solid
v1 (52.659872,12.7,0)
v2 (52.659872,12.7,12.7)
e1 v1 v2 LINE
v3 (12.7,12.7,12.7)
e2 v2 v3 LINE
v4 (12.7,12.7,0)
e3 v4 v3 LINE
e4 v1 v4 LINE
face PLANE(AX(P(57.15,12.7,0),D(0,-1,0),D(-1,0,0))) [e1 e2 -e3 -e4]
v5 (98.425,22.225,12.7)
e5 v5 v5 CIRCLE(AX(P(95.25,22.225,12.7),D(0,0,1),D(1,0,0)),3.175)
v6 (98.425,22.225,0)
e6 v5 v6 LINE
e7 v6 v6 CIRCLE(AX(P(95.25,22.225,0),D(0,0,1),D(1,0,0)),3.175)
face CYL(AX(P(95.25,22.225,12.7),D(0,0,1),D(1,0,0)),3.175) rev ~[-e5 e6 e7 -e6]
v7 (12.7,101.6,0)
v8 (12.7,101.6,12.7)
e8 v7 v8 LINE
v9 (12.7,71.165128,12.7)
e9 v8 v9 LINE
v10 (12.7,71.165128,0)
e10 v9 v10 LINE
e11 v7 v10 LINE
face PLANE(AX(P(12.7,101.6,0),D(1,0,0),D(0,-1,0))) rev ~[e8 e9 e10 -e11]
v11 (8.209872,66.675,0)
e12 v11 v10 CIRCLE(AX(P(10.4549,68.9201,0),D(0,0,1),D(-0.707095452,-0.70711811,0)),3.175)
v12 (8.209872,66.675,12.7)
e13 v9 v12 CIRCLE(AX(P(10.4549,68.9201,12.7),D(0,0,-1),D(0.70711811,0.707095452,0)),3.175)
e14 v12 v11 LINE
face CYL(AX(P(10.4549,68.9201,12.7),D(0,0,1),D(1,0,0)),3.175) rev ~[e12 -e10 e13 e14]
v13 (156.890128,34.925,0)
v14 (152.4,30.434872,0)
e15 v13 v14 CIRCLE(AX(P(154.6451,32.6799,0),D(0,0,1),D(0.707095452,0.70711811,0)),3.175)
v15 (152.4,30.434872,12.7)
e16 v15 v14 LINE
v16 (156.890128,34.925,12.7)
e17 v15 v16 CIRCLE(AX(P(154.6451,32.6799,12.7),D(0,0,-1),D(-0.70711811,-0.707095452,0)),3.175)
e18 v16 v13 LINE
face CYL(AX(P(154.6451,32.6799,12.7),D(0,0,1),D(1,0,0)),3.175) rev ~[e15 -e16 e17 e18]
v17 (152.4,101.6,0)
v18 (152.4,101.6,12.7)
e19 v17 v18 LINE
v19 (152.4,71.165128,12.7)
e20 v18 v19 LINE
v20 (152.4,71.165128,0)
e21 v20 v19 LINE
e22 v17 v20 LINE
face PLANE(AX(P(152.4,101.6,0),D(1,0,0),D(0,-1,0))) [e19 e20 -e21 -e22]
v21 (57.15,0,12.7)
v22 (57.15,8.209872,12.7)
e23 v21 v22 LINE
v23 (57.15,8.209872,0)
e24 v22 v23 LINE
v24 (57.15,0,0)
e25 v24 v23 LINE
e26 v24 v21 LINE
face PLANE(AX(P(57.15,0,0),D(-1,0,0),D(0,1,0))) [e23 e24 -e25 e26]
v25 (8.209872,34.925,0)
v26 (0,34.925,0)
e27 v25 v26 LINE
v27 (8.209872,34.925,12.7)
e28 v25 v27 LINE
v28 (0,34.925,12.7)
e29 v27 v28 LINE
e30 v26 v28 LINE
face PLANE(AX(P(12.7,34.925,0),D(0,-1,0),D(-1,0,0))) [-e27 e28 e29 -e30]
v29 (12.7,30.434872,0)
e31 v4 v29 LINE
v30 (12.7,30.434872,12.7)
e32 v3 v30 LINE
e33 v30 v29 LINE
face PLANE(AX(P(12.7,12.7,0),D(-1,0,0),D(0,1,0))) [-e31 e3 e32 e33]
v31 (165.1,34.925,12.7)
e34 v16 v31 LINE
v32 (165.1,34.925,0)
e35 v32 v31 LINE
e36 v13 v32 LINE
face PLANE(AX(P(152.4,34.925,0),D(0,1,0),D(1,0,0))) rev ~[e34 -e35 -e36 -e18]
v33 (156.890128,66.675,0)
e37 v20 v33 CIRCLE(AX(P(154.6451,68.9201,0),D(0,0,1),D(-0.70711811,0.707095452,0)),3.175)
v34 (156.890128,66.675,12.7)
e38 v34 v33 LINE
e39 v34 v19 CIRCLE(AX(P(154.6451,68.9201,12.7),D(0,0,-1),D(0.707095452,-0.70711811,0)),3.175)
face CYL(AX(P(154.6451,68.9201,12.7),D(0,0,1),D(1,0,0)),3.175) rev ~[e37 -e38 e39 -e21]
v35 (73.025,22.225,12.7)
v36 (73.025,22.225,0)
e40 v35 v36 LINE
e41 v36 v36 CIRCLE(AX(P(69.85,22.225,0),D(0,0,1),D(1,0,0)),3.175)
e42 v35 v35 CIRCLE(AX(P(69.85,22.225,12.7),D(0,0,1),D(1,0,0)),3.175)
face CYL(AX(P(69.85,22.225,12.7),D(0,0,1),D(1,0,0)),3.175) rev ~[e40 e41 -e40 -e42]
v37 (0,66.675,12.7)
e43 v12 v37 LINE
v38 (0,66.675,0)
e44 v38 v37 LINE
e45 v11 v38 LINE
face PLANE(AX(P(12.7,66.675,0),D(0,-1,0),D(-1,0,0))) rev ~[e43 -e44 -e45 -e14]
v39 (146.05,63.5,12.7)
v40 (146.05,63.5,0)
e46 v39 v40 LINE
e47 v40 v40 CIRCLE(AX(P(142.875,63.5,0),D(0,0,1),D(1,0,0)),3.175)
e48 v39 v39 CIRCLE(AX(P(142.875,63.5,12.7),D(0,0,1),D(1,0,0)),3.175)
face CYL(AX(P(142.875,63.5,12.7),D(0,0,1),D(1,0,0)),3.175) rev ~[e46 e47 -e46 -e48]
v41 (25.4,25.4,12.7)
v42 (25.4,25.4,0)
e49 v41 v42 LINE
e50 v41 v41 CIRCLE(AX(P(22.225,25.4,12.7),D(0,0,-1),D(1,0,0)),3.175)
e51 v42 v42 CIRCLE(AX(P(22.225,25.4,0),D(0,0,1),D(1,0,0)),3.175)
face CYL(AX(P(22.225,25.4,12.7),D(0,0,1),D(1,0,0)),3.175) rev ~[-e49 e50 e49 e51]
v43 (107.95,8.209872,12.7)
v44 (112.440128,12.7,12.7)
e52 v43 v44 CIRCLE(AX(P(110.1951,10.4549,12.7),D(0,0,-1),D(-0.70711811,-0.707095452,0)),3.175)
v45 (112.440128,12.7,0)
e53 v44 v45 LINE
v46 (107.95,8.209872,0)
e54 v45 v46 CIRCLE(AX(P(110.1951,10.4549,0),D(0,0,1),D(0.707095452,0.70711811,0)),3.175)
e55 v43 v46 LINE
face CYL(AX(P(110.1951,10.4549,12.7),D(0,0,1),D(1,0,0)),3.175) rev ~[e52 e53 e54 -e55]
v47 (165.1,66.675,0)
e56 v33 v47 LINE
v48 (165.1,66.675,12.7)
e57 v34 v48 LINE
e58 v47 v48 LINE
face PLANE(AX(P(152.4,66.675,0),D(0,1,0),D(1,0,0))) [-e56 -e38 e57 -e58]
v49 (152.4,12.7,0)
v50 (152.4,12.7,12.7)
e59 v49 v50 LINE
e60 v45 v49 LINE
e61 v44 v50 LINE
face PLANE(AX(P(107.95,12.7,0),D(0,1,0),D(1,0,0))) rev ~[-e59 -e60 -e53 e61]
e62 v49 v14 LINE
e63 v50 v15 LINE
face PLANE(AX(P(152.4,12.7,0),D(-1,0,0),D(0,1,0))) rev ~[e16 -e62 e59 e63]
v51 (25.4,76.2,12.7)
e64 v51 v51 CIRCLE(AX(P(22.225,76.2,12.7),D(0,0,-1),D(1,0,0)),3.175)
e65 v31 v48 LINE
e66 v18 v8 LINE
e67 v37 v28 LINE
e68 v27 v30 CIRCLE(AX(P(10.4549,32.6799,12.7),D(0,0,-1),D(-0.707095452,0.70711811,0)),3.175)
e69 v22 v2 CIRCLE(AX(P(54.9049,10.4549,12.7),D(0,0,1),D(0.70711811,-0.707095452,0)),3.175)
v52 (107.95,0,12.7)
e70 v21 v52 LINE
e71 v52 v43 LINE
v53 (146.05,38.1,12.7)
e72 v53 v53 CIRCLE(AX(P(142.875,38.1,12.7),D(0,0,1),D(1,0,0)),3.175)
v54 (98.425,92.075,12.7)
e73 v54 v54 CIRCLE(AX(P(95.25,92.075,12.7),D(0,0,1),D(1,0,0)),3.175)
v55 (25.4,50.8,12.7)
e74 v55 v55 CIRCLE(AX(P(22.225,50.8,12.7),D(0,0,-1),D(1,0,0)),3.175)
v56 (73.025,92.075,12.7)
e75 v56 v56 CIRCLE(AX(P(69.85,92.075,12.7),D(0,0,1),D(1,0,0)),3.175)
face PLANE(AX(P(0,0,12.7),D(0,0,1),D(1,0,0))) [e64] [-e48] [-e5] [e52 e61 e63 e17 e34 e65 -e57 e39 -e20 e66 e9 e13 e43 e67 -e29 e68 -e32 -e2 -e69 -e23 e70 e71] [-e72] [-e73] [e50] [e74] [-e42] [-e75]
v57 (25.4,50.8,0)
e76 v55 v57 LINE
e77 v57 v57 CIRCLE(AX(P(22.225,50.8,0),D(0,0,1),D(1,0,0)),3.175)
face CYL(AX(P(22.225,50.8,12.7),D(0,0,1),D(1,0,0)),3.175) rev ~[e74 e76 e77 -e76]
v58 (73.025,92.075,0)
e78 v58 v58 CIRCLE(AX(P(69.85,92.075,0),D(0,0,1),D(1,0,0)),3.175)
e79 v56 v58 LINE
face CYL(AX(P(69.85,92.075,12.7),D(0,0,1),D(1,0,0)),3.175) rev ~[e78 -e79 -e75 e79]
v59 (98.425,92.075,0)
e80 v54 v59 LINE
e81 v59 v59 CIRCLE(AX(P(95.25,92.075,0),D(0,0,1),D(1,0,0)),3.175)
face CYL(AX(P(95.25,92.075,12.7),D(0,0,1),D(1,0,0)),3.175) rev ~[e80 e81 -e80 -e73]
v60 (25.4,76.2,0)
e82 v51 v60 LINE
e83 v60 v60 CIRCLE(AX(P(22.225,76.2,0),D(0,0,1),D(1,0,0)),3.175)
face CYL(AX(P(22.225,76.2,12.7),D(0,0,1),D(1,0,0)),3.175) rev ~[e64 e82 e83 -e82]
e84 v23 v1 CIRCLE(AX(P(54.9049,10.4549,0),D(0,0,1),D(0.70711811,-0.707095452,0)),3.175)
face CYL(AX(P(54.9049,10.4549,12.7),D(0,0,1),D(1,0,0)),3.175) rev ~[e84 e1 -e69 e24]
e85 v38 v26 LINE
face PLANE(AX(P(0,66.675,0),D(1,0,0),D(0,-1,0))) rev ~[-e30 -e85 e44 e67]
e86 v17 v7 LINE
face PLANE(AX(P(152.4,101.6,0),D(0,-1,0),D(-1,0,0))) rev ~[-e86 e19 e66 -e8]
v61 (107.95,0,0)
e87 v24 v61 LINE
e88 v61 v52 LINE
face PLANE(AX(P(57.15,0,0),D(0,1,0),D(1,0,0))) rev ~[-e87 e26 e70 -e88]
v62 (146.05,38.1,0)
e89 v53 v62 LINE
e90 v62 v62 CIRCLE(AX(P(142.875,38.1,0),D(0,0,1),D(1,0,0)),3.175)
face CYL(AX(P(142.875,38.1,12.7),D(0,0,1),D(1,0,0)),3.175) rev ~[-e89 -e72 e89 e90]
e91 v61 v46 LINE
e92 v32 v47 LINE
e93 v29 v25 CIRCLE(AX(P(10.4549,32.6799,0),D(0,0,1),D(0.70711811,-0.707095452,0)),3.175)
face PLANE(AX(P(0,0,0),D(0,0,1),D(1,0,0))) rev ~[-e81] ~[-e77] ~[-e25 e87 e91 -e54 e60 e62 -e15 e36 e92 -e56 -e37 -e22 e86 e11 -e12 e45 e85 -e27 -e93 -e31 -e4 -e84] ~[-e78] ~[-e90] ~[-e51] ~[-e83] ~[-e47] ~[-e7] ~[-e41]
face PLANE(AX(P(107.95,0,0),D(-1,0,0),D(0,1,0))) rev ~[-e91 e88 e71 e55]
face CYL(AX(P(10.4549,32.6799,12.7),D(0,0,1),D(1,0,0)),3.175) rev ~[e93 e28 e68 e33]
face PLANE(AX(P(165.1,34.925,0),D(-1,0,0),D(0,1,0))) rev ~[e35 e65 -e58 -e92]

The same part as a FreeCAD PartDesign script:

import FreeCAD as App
import Part
import Sketcher

V = App.Vector
Q = App.Units.Quantity


def add_polygon(sketch, points):
    """Adds a closed chain of lines whose ends are joined by coincident constraints."""
    first, n = sketch.GeometryCount, len(points)
    for a, b in zip(points, points[1:] + points[:1]):
        sketch.addGeometry(Part.LineSegment(App.Vector(*a, 0), App.Vector(*b, 0)), False)
    for i in range(n):
        sketch.addConstraint(Sketcher.Constraint("Coincident", first + i, 2, first + (i + 1) % n, 1))

doc = App.newDocument("Part")
params = doc.addObject("Spreadsheet::Sheet", "Params")
for row, (alias, value) in enumerate([
    ("sketch1_width", "0.5 in"),
    ("sketch1_width2", "2 in"),
    ("sketch1_height", "0.875 in"),
    ("sketch1_height2", "1.375 in"),
    ("pad1_length", "0.5 in"),
    ("sketch2_diameter", "0.25 in"),
    ("pocket1_length", "0.5 in"),
    ("sketch3_diameter", "0.25 in"),
    ("pocket2_length", "0.5 in"),
    ("sketch4_diameter", "0.25 in"),
    ("pocket3_length", "0.5 in"),
    ("sketch5_diameter", "0.25 in"),
    ("pad2_length", "0.5 in"),
    ("sketch6_diameter", "0.25 in"),
    ("pad3_length", "0.5 in"),
    ("sketch7_diameter", "0.25 in"),
    ("pocket4_length", "0.5 in"),
    ("sketch8_diameter", "0.25 in"),
    ("pad4_length", "0.5 in"),
    ("sketch9_diameter", "0.25 in"),
    ("pocket5_length", "0.5 in"),
    ("sketch10_diameter", "0.25 in"),
    ("pocket6_length", "0.5 in"),
], start=1):
    params.set(f"A{row}", alias)
    params.set(f"B{row}", "=" + value)
    params.setAlias(f"B{row}", alias)

body = doc.addObject("PartDesign::Body", "Body")

sketch1 = body.newObject("Sketcher::SketchObject", "Sketch")
sketch1.AttachmentSupport = (doc.getObject("XY_Plane"), [""])
sketch1.MapMode = "FlatFace"
add_polygon(sketch1, [(57.15, 12.7), (57.15, 0), (107.95, 0), (107.95, 12.7), (152.4, 12.7), (152.4, 34.925), (165.1, 34.925), (165.1, 66.675), (152.4, 66.675), (152.4, 101.6), (12.7, 101.6), (12.7, 66.675), (0, 66.675), (0, 34.925), (12.7, 34.925), (12.7, 12.7)])
sketch1.addConstraint([
    Sketcher.Constraint("Vertical", 0),
    Sketcher.Constraint("Horizontal", 1),
    Sketcher.Constraint("Vertical", 2),
    Sketcher.Constraint("Horizontal", 3),
    Sketcher.Constraint("Vertical", 4),
    Sketcher.Constraint("Horizontal", 5),
    Sketcher.Constraint("Vertical", 6),
    Sketcher.Constraint("Horizontal", 7),
    Sketcher.Constraint("Vertical", 8),
    Sketcher.Constraint("Horizontal", 9),
    Sketcher.Constraint("Vertical", 10),
    Sketcher.Constraint("Horizontal", 11),
    Sketcher.Constraint("Vertical", 12),
    Sketcher.Constraint("Horizontal", 13),
    Sketcher.Constraint("Vertical", 14),
    Sketcher.Constraint("Horizontal", 15),
    Sketcher.Constraint("PointOnObject", 0, 2, -1),
    Sketcher.Constraint("PointOnObject", 11, 2, -2),
    Sketcher.Constraint("Horizontal", 7, 2, 10, 2),
    Sketcher.Constraint("Horizontal", 5, 2, 12, 2),
    Sketcher.Constraint("Horizontal", 3, 2, 14, 2),
    Sketcher.Constraint("Vertical", 4, 2, 7, 2),
    Sketcher.Constraint("Vertical", 10, 2, 13, 2),
    Sketcher.Constraint("Equal", 7, 11),
    Sketcher.Constraint("Equal", 3, 15),
    Sketcher.Constraint("Equal", 13, 0),
    Sketcher.Constraint("DistanceX", 5, 1, 5, 2, Q("0.5 in")),
    Sketcher.Constraint("DistanceY", -1, 1, 8, 2, Q("4 in")),
    Sketcher.Constraint("DistanceX", -1, 1, 5, 2, Q("6.5 in")),
    Sketcher.Constraint("DistanceX", 1, 1, 1, 2, Q("2 in")),
    Sketcher.Constraint("DistanceY", 4, 1, 4, 2, Q("0.875 in")),
    Sketcher.Constraint("DistanceY", 8, 1, 8, 2, Q("1.375 in")),
])
sketch1.setExpression("Constraints[42]", "Params.sketch1_width")
sketch1.setExpression("Constraints[45]", "Params.sketch1_width2")
sketch1.setExpression("Constraints[46]", "Params.sketch1_height")
sketch1.setExpression("Constraints[47]", "Params.sketch1_height2")
pad1 = body.newObject("PartDesign::Pad", "Pad")
pad1.Profile = sketch1
pad1.setExpression("Length", "Params.pad1_length")

sketch2 = body.newObject("Sketcher::SketchObject", "Sketch001")
sketch2.AttachmentSupport = (doc.getObject("XY_Plane"), [""])
sketch2.MapMode = "FlatFace"
sketch2.AttachmentOffset = App.Placement(V(0, 0, 0.5 * 25.4), App.Rotation())
sketch2.addGeometry([
    Part.Circle(V(10.4549, 68.9201, 0), V(0, 0, 1), 3.175),
    Part.Circle(V(10.4549, 32.6799, 0), V(0, 0, 1), 3.175),
    Part.Circle(V(54.9049, 10.4549, 0), V(0, 0, 1), 3.175),
    Part.Circle(V(110.1951, 10.4549, 0), V(0, 0, 1), 3.175),
    Part.Circle(V(154.6451, 32.6799, 0), V(0, 0, 1), 3.175),
    Part.Circle(V(154.6451, 68.9201, 0), V(0, 0, 1), 3.175),
], False)
sketch2.addConstraint([
    Sketcher.Constraint("Equal", 0, 1),
    Sketcher.Constraint("Equal", 1, 2),
    Sketcher.Constraint("Equal", 2, 3),
    Sketcher.Constraint("Equal", 3, 4),
    Sketcher.Constraint("Equal", 4, 5),
    Sketcher.Constraint("Horizontal", 2, 3, 3, 3),
    Sketcher.Constraint("Horizontal", 1, 3, 4, 3),
    Sketcher.Constraint("Horizontal", 0, 3, 5, 3),
    Sketcher.Constraint("Vertical", 0, 3, 1, 3),
    Sketcher.Constraint("Vertical", 4, 3, 5, 3),
    Sketcher.Constraint("Diameter", 0, Q("0.25 in")),
    Sketcher.Constraint("DistanceX", 1, 3, 2, 3, Q("1.75 in")),
    Sketcher.Constraint("DistanceX", 3, 3, 4, 3, Q("1.75 in")),
    Sketcher.Constraint("DistanceY", 2, 3, 1, 3, Q("0.875 in")),
    Sketcher.Constraint("DistanceX", -1, 1, 0, 3, Q("0.4116 in")),
    Sketcher.Constraint("DistanceY", -1, 1, 0, 3, Q("2.7134 in")),
    Sketcher.Constraint("DistanceY", -1, 1, 1, 3, Q("1.2866 in")),
    Sketcher.Constraint("DistanceX", -1, 1, 3, 3, Q("4.3384 in")),
])
sketch2.setExpression("Constraints[10]", "Params.sketch2_diameter")
pocket1 = body.newObject("PartDesign::Pocket", "Pocket")
pocket1.Profile = sketch2
pocket1.setExpression("Length", "Params.pocket1_length")

sketch3 = body.newObject("Sketcher::SketchObject", "Sketch002")
sketch3.AttachmentSupport = (doc.getObject("XY_Plane"), [""])
sketch3.MapMode = "FlatFace"
sketch3.AttachmentOffset = App.Placement(V(0, 0, 0.5 * 25.4), App.Rotation())
sketch3.addGeometry([
    Part.Circle(V(22.225, 82.55, 0), V(0, 0, 1), 3.175),
    Part.Circle(V(22.225, 57.15, 0), V(0, 0, 1), 3.175),
    Part.Circle(V(22.225, 31.75, 0), V(0, 0, 1), 3.175),
    Part.Circle(V(142.875, 31.75, 0), V(0, 0, 1), 3.175),
    Part.Circle(V(142.875, 57.15, 0), V(0, 0, 1), 3.175),
    Part.Circle(V(142.875, 82.55, 0), V(0, 0, 1), 3.175),
    Part.Circle(V(82.55, 22.225, 0), V(0, 0, 1), 3.175),
    Part.Circle(V(57.15, 22.225, 0), V(0, 0, 1), 3.175),
    Part.Circle(V(107.95, 22.225, 0), V(0, 0, 1), 3.175),
], False)
sketch3.addConstraint([
    Sketcher.Constraint("Equal", 0, 1),
    Sketcher.Constraint("Equal", 1, 2),
    Sketcher.Constraint("Equal", 2, 3),
    Sketcher.Constraint("Equal", 3, 4),
    Sketcher.Constraint("Equal", 4, 5),
    Sketcher.Constraint("Equal", 5, 6),
    Sketcher.Constraint("Equal", 6, 7),
    Sketcher.Constraint("Equal", 7, 8),
    Sketcher.Constraint("Horizontal", 2, 3, 3, 3),
    Sketcher.Constraint("Horizontal", 1, 3, 4, 3),
    Sketcher.Constraint("Horizontal", 0, 3, 5, 3),
    Sketcher.Constraint("Horizontal", 6, 3, 7, 3),
    Sketcher.Constraint("Horizontal", 7, 3, 8, 3),
    Sketcher.Constraint("Vertical", 0, 3, 1, 3),
    Sketcher.Constraint("Vertical", 1, 3, 2, 3),
    Sketcher.Constraint("Vertical", 3, 3, 4, 3),
    Sketcher.Constraint("Vertical", 4, 3, 5, 3),
    Sketcher.Constraint("Diameter", 0, Q("0.25 in")),
    Sketcher.Constraint("DistanceY", 1, 3, 0, 3, Q("1 in")),
    Sketcher.Constraint("DistanceY", 2, 3, 1, 3, Q("1 in")),
    Sketcher.Constraint("DistanceX", 7, 3, 6, 3, Q("1 in")),
    Sketcher.Constraint("DistanceX", 6, 3, 8, 3, Q("1 in")),
    Sketcher.Constraint("DistanceY", -1, 1, 2, 3, Q("1.25 in")),
    Sketcher.Constraint("DistanceY", 6, 3, 2, 3, Q("0.375 in")),
    Sketcher.Constraint("DistanceX", -1, 1, 6, 3, Q("3.25 in")),
    Sketcher.Constraint("DistanceX", 2, 3, 3, 3, Q("4.75 in")),
    Sketcher.Constraint("DistanceX", -1, 1, 0, 3, Q("0.875 in")),
])
sketch3.setExpression("Constraints[17]", "Params.sketch3_diameter")
pocket2 = body.newObject("PartDesign::Pocket", "Pocket001")
pocket2.Profile = sketch3
pocket2.setExpression("Length", "Params.pocket2_length")

sketch4 = body.newObject("Sketcher::SketchObject", "Sketch003")
sketch4.AttachmentSupport = (doc.getObject("XY_Plane"), [""])
sketch4.MapMode = "FlatFace"
sketch4.AttachmentOffset = App.Placement(V(0, 0, 0.5 * 25.4), App.Rotation())
sketch4.addGeometry([
    Part.Circle(V(22.225, 76.2, 0), V(0, 0, 1), 3.175),
    Part.Circle(V(22.225, 50.8, 0), V(0, 0, 1), 3.175),
    Part.Circle(V(22.225, 25.4, 0), V(0, 0, 1), 3.175),
], False)
sketch4.addConstraint([
    Sketcher.Constraint("Equal", 0, 1),
    Sketcher.Constraint("Equal", 1, 2),
    Sketcher.Constraint("Vertical", 0, 3, 1, 3),
    Sketcher.Constraint("Vertical", 1, 3, 2, 3),
    Sketcher.Constraint("Diameter", 0, Q("0.25 in")),
    Sketcher.Constraint("DistanceY", -1, 1, 2, 3, Q("1 in")),
    Sketcher.Constraint("DistanceY", 1, 3, 0, 3, Q("1 in")),
    Sketcher.Constraint("DistanceY", 2, 3, 1, 3, Q("1 in")),
    Sketcher.Constraint("DistanceX", -1, 1, 0, 3, Q("0.875 in")),
])
sketch4.setExpression("Constraints[4]", "Params.sketch4_diameter")
pocket3 = body.newObject("PartDesign::Pocket", "Pocket002")
pocket3.Profile = sketch4
pocket3.setExpression("Length", "Params.pocket3_length")

sketch5 = body.newObject("Sketcher::SketchObject", "Sketch004")
sketch5.AttachmentSupport = (doc.getObject("XY_Plane"), [""])
sketch5.MapMode = "FlatFace"
sketch5.AttachmentOffset = App.Placement(V(0, 0, 0.5 * 25.4), App.Rotation())
sketch5.addGeometry([
    Part.Circle(V(22.225, 82.55, 0), V(0, 0, 1), 3.175),
    Part.Circle(V(22.225, 57.15, 0), V(0, 0, 1), 3.175),
    Part.Circle(V(22.225, 31.75, 0), V(0, 0, 1), 3.175),
], False)
sketch5.addConstraint([
    Sketcher.Constraint("Equal", 0, 1),
    Sketcher.Constraint("Equal", 1, 2),
    Sketcher.Constraint("Vertical", 0, 3, 1, 3),
    Sketcher.Constraint("Vertical", 1, 3, 2, 3),
    Sketcher.Constraint("Diameter", 0, Q("0.25 in")),
    Sketcher.Constraint("DistanceY", 1, 3, 0, 3, Q("1 in")),
    Sketcher.Constraint("DistanceY", 2, 3, 1, 3, Q("1 in")),
    Sketcher.Constraint("DistanceY", -1, 1, 0, 3, Q("3.25 in")),
    Sketcher.Constraint("DistanceX", -1, 1, 0, 3, Q("0.875 in")),
])
sketch5.setExpression("Constraints[4]", "Params.sketch5_diameter")
pad2 = body.newObject("PartDesign::Pad", "Pad001")
pad2.Profile = sketch5
pad2.setExpression("Length", "Params.pad2_length")
pad2.Reversed = True

sketch6 = body.newObject("Sketcher::SketchObject", "Sketch005")
sketch6.AttachmentSupport = (doc.getObject("XY_Plane"), [""])
sketch6.MapMode = "FlatFace"
sketch6.AttachmentOffset = App.Placement(V(0, 0, 0.5 * 25.4), App.Rotation())
sketch6.addGeometry([
    Part.Circle(V(142.875, 82.55, 0), V(0, 0, 1), 3.175),
    Part.Circle(V(142.875, 57.15, 0), V(0, 0, 1), 3.175),
    Part.Circle(V(142.875, 31.75, 0), V(0, 0, 1), 3.175),
], False)
sketch6.addConstraint([
    Sketcher.Constraint("Equal", 0, 1),
    Sketcher.Constraint("Equal", 1, 2),
    Sketcher.Constraint("Vertical", 0, 3, 1, 3),
    Sketcher.Constraint("Vertical", 1, 3, 2, 3),
    Sketcher.Constraint("Diameter", 0, Q("0.25 in")),
    Sketcher.Constraint("DistanceY", 1, 3, 0, 3, Q("1 in")),
    Sketcher.Constraint("DistanceY", 2, 3, 1, 3, Q("1 in")),
    Sketcher.Constraint("DistanceY", -1, 1, 0, 3, Q("3.25 in")),
    Sketcher.Constraint("DistanceX", -1, 1, 0, 3, Q("5.625 in")),
])
sketch6.setExpression("Constraints[4]", "Params.sketch6_diameter")
pad3 = body.newObject("PartDesign::Pad", "Pad002")
pad3.Profile = sketch6
pad3.setExpression("Length", "Params.pad3_length")
pad3.Reversed = True

sketch7 = body.newObject("Sketcher::SketchObject", "Sketch006")
sketch7.AttachmentSupport = (doc.getObject("XY_Plane"), [""])
sketch7.MapMode = "FlatFace"
sketch7.AttachmentOffset = App.Placement(V(0, 0, 0.5 * 25.4), App.Rotation())
sketch7.addGeometry([
    Part.Circle(V(69.85, 22.225, 0), V(0, 0, 1), 3.175),
    Part.Circle(V(95.25, 22.225, 0), V(0, 0, 1), 3.175),
], False)
sketch7.addConstraint([
    Sketcher.Constraint("Equal", 0, 1),
    Sketcher.Constraint("Horizontal", 0, 3, 1, 3),
    Sketcher.Constraint("Diameter", 0, Q("0.25 in")),
    Sketcher.Constraint("DistanceX", 0, 3, 1, 3, Q("1 in")),
    Sketcher.Constraint("DistanceX", -1, 1, 0, 3, Q("2.75 in")),
    Sketcher.Constraint("DistanceY", -1, 1, 0, 3, Q("0.875 in")),
])
sketch7.setExpression("Constraints[2]", "Params.sketch7_diameter")
pocket4 = body.newObject("PartDesign::Pocket", "Pocket003")
pocket4.Profile = sketch7
pocket4.setExpression("Length", "Params.pocket4_length")

sketch8 = body.newObject("Sketcher::SketchObject", "Sketch007")
sketch8.AttachmentSupport = (doc.getObject("XY_Plane"), [""])
sketch8.MapMode = "FlatFace"
sketch8.AttachmentOffset = App.Placement(V(0, 0, 0.5 * 25.4), App.Rotation())
sketch8.addGeometry([
    Part.Circle(V(82.55, 22.225, 0), V(0, 0, 1), 3.175),
    Part.Circle(V(57.15, 22.225, 0), V(0, 0, 1), 3.175),
    Part.Circle(V(107.95, 22.225, 0), V(0, 0, 1), 3.175),
], False)
sketch8.addConstraint([
    Sketcher.Constraint("Equal", 0, 1),
    Sketcher.Constraint("Equal", 1, 2),
    Sketcher.Constraint("Horizontal", 0, 3, 1, 3),
    Sketcher.Constraint("Horizontal", 1, 3, 2, 3),
    Sketcher.Constraint("Diameter", 0, Q("0.25 in")),
    Sketcher.Constraint("DistanceX", 1, 3, 0, 3, Q("1 in")),
    Sketcher.Constraint("DistanceX", 0, 3, 2, 3, Q("1 in")),
    Sketcher.Constraint("DistanceX", -1, 1, 0, 3, Q("3.25 in")),
    Sketcher.Constraint("DistanceY", -1, 1, 0, 3, Q("0.875 in")),
])
sketch8.setExpression("Constraints[4]", "Params.sketch8_diameter")
pad4 = body.newObject("PartDesign::Pad", "Pad003")
pad4.Profile = sketch8
pad4.setExpression("Length", "Params.pad4_length")
pad4.Reversed = True

sketch9 = body.newObject("Sketcher::SketchObject", "Sketch008")
sketch9.AttachmentSupport = (doc.getObject("XY_Plane"), [""])
sketch9.MapMode = "FlatFace"
sketch9.AttachmentOffset = App.Placement(V(0, 0, 0.5 * 25.4), App.Rotation())
sketch9.addGeometry([
    Part.Circle(V(69.85, 92.075, 0), V(0, 0, 1), 3.175),
    Part.Circle(V(95.25, 92.075, 0), V(0, 0, 1), 3.175),
], False)
sketch9.addConstraint([
    Sketcher.Constraint("Equal", 0, 1),
    Sketcher.Constraint("Horizontal", 0, 3, 1, 3),
    Sketcher.Constraint("Diameter", 0, Q("0.25 in")),
    Sketcher.Constraint("DistanceX", 0, 3, 1, 3, Q("1 in")),
    Sketcher.Constraint("DistanceX", -1, 1, 0, 3, Q("2.75 in")),
    Sketcher.Constraint("DistanceY", -1, 1, 0, 3, Q("3.625 in")),
])
sketch9.setExpression("Constraints[2]", "Params.sketch9_diameter")
pocket5 = body.newObject("PartDesign::Pocket", "Pocket004")
pocket5.Profile = sketch9
pocket5.setExpression("Length", "Params.pocket5_length")

sketch10 = body.newObject("Sketcher::SketchObject", "Sketch009")
sketch10.AttachmentSupport = (doc.getObject("XY_Plane"), [""])
sketch10.MapMode = "FlatFace"
sketch10.AttachmentOffset = App.Placement(V(0, 0, 0.5 * 25.4), App.Rotation())
sketch10.addGeometry([
    Part.Circle(V(142.875, 38.1, 0), V(0, 0, 1), 3.175),
    Part.Circle(V(142.875, 63.5, 0), V(0, 0, 1), 3.175),
], False)
sketch10.addConstraint([
    Sketcher.Constraint("Equal", 0, 1),
    Sketcher.Constraint("Vertical", 0, 3, 1, 3),
    Sketcher.Constraint("Diameter", 0, Q("0.25 in")),
    Sketcher.Constraint("DistanceY", 0, 3, 1, 3, Q("1 in")),
    Sketcher.Constraint("DistanceY", -1, 1, 0, 3, Q("1.5 in")),
    Sketcher.Constraint("DistanceX", -1, 1, 0, 3, Q("5.625 in")),
])
sketch10.setExpression("Constraints[2]", "Params.sketch10_diameter")
pocket6 = body.newObject("PartDesign::Pocket", "Pocket005")
pocket6.Profile = sketch10
pocket6.setExpression("Length", "Params.pocket6_length")

doc.recompute()
